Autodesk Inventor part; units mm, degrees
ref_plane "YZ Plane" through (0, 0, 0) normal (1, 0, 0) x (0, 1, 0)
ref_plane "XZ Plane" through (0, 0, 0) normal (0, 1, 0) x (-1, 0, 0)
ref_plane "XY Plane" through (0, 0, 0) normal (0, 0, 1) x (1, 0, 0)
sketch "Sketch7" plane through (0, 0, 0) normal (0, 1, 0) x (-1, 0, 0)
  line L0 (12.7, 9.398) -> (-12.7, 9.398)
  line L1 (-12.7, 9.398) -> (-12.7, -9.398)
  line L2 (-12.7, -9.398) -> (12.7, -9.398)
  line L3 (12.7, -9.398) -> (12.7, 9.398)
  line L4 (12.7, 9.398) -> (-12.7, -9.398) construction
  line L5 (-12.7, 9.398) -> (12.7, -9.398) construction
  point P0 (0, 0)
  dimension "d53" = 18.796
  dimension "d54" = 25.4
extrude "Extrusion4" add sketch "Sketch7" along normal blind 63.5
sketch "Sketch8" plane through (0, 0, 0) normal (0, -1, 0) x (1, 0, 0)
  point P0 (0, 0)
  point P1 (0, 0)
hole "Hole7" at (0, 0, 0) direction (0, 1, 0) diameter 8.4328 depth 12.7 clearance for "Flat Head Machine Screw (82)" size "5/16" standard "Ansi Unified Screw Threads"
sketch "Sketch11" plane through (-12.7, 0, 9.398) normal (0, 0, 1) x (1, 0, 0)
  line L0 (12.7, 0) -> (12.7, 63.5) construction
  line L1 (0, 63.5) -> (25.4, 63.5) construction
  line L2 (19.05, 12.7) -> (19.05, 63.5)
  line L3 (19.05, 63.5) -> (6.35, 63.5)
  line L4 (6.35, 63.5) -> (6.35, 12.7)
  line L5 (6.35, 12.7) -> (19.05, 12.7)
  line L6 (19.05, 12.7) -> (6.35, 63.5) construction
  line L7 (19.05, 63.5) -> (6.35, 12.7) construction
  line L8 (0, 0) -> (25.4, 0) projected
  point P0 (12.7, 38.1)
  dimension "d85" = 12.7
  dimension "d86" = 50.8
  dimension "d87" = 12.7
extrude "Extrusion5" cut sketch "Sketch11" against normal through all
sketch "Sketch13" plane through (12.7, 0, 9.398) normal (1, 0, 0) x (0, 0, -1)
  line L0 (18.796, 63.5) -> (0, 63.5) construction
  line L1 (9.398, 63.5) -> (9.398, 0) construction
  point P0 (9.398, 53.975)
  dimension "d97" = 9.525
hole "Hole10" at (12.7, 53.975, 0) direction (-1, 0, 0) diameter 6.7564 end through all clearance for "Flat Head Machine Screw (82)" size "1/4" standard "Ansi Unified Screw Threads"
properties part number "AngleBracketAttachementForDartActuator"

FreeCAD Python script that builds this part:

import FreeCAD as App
import Part
import Sketcher

V = App.Vector
Q = App.Units.Quantity


def add_polygon(sketch, points):
    """Adds a closed chain of lines whose ends are joined by coincident constraints."""
    first, n = sketch.GeometryCount, len(points)
    for a, b in zip(points, points[1:] + points[:1]):
        sketch.addGeometry(Part.LineSegment(App.Vector(*a, 0), App.Vector(*b, 0)), False)
    for i in range(n):
        sketch.addConstraint(Sketcher.Constraint("Coincident", first + i, 2, first + (i + 1) % n, 1))

doc = App.newDocument("Part")
body = doc.addObject("PartDesign::Body", "Body")

# Sketch on XZ plane
sketch1 = doc.addObject("Sketcher::SketchObject", "Sketch")
body.addObject(sketch1)
sketch1.AttachmentSupport = (doc.XZ_Plane, [""])
sketch1.MapMode = "FlatFace"
add_polygon(sketch1, [(-13, -9), (-13, 9), (13, 9), (13, -9)])  # lines 0-3
sketch1.addConstraint([
    Sketcher.Constraint("Vertical", 0),
    Sketcher.Constraint("Horizontal", 1),
    Sketcher.Constraint("Vertical", 2),
    Sketcher.Constraint("Horizontal", 3),
    Sketcher.Constraint("Symmetric", 0, 2, 2, 2, -1, 1),
    Sketcher.Constraint("DistanceX", 1, 1, 1, 2, Q("1 in")),
    Sketcher.Constraint("DistanceY", 0, 1, 0, 2, Q("0.74 in")),
])
pad1 = doc.addObject("PartDesign::Pad", "Pad")
body.addObject(pad1)
pad1.Profile = sketch1
pad1.Length = Q("2.5 in")
pad1.Reversed = True

# Sketch on XZ plane
sketch2 = doc.addObject("Sketcher::SketchObject", "Sketch001")
body.addObject(sketch2)
sketch2.AttachmentSupport = (doc.XZ_Plane, [""])
sketch2.MapMode = "FlatFace"
sketch2.addGeometry(Part.Circle(V(0, 0, 0), V(0, 0, 1), 4.2), False)
sketch2.addConstraint([
    Sketcher.Constraint("Coincident", 0, 3, -1, 1),
    Sketcher.Constraint("Diameter", 0, Q("0.332 in")),
])
doc.recompute()
hole = doc.addObject("PartDesign::Hole", "Hole")
body.addObject(hole)
hole.Profile = sketch2
hole.ThreadType = "None"
hole.Diameter = Q("0.332 in")
hole.DepthType = "Dimension"
hole.Depth = Q("0.5 in")
hole.DrillPoint = "Flat"

# Sketch on XY plane
sketch3 = doc.addObject("Sketcher::SketchObject", "Sketch002")
body.addObject(sketch3)
sketch3.AttachmentSupport = (doc.XY_Plane, [""])
sketch3.MapMode = "FlatFace"
sketch3.AttachmentOffset = App.Placement(V(0, 0, 0.37 * 25.4), App.Rotation())
add_polygon(sketch3, [(-6, 13), (6, 13), (6, 64), (-6, 64)])  # lines 0-3
sketch3.addConstraint([
    Sketcher.Constraint("Horizontal", 0),
    Sketcher.Constraint("Vertical", 1),
    Sketcher.Constraint("Horizontal", 2),
    Sketcher.Constraint("Vertical", 3),
    Sketcher.Constraint("DistanceY", 1, 1, 1, 2, Q("2 in")),
    Sketcher.Constraint("DistanceX", 0, 1, 0, 2, Q("0.5 in")),
    Sketcher.Constraint("DistanceY", -1, 1, 0, 2, Q("0.5 in")),
    Sketcher.Constraint("DistanceX", -1, 1, 0, 2, Q("0.25 in")),
])
pocket1 = doc.addObject("PartDesign::Pocket", "Pocket")
body.addObject(pocket1)
pocket1.Profile = sketch3
pocket1.Type = "ThroughAll"

# Sketch on YZ plane
sketch4 = doc.addObject("Sketcher::SketchObject", "Sketch003")
body.addObject(sketch4)
sketch4.AttachmentSupport = (doc.YZ_Plane, [""])
sketch4.MapMode = "FlatFace"
sketch4.AttachmentOffset = App.Placement(V(0, 0, 0.5 * 25.4), App.Rotation())
sketch4.addGeometry(Part.Circle(V(54, 0, 0), V(0, 0, 1), 3.4), False)
sketch4.addConstraint([
    Sketcher.Constraint("PointOnObject", 0, 3, -1),
    Sketcher.Constraint("Diameter", 0, Q("0.266 in")),
    Sketcher.Constraint("DistanceX", -1, 1, 0, 3, Q("2.125 in")),
])
doc.recompute()
hole2 = doc.addObject("PartDesign::Hole", "Hole001")
body.addObject(hole2)
hole2.Profile = sketch4
hole2.ThreadType = "None"
hole2.Diameter = Q("0.266 in")
hole2.DepthType = "ThroughAll"

doc.recompute()
